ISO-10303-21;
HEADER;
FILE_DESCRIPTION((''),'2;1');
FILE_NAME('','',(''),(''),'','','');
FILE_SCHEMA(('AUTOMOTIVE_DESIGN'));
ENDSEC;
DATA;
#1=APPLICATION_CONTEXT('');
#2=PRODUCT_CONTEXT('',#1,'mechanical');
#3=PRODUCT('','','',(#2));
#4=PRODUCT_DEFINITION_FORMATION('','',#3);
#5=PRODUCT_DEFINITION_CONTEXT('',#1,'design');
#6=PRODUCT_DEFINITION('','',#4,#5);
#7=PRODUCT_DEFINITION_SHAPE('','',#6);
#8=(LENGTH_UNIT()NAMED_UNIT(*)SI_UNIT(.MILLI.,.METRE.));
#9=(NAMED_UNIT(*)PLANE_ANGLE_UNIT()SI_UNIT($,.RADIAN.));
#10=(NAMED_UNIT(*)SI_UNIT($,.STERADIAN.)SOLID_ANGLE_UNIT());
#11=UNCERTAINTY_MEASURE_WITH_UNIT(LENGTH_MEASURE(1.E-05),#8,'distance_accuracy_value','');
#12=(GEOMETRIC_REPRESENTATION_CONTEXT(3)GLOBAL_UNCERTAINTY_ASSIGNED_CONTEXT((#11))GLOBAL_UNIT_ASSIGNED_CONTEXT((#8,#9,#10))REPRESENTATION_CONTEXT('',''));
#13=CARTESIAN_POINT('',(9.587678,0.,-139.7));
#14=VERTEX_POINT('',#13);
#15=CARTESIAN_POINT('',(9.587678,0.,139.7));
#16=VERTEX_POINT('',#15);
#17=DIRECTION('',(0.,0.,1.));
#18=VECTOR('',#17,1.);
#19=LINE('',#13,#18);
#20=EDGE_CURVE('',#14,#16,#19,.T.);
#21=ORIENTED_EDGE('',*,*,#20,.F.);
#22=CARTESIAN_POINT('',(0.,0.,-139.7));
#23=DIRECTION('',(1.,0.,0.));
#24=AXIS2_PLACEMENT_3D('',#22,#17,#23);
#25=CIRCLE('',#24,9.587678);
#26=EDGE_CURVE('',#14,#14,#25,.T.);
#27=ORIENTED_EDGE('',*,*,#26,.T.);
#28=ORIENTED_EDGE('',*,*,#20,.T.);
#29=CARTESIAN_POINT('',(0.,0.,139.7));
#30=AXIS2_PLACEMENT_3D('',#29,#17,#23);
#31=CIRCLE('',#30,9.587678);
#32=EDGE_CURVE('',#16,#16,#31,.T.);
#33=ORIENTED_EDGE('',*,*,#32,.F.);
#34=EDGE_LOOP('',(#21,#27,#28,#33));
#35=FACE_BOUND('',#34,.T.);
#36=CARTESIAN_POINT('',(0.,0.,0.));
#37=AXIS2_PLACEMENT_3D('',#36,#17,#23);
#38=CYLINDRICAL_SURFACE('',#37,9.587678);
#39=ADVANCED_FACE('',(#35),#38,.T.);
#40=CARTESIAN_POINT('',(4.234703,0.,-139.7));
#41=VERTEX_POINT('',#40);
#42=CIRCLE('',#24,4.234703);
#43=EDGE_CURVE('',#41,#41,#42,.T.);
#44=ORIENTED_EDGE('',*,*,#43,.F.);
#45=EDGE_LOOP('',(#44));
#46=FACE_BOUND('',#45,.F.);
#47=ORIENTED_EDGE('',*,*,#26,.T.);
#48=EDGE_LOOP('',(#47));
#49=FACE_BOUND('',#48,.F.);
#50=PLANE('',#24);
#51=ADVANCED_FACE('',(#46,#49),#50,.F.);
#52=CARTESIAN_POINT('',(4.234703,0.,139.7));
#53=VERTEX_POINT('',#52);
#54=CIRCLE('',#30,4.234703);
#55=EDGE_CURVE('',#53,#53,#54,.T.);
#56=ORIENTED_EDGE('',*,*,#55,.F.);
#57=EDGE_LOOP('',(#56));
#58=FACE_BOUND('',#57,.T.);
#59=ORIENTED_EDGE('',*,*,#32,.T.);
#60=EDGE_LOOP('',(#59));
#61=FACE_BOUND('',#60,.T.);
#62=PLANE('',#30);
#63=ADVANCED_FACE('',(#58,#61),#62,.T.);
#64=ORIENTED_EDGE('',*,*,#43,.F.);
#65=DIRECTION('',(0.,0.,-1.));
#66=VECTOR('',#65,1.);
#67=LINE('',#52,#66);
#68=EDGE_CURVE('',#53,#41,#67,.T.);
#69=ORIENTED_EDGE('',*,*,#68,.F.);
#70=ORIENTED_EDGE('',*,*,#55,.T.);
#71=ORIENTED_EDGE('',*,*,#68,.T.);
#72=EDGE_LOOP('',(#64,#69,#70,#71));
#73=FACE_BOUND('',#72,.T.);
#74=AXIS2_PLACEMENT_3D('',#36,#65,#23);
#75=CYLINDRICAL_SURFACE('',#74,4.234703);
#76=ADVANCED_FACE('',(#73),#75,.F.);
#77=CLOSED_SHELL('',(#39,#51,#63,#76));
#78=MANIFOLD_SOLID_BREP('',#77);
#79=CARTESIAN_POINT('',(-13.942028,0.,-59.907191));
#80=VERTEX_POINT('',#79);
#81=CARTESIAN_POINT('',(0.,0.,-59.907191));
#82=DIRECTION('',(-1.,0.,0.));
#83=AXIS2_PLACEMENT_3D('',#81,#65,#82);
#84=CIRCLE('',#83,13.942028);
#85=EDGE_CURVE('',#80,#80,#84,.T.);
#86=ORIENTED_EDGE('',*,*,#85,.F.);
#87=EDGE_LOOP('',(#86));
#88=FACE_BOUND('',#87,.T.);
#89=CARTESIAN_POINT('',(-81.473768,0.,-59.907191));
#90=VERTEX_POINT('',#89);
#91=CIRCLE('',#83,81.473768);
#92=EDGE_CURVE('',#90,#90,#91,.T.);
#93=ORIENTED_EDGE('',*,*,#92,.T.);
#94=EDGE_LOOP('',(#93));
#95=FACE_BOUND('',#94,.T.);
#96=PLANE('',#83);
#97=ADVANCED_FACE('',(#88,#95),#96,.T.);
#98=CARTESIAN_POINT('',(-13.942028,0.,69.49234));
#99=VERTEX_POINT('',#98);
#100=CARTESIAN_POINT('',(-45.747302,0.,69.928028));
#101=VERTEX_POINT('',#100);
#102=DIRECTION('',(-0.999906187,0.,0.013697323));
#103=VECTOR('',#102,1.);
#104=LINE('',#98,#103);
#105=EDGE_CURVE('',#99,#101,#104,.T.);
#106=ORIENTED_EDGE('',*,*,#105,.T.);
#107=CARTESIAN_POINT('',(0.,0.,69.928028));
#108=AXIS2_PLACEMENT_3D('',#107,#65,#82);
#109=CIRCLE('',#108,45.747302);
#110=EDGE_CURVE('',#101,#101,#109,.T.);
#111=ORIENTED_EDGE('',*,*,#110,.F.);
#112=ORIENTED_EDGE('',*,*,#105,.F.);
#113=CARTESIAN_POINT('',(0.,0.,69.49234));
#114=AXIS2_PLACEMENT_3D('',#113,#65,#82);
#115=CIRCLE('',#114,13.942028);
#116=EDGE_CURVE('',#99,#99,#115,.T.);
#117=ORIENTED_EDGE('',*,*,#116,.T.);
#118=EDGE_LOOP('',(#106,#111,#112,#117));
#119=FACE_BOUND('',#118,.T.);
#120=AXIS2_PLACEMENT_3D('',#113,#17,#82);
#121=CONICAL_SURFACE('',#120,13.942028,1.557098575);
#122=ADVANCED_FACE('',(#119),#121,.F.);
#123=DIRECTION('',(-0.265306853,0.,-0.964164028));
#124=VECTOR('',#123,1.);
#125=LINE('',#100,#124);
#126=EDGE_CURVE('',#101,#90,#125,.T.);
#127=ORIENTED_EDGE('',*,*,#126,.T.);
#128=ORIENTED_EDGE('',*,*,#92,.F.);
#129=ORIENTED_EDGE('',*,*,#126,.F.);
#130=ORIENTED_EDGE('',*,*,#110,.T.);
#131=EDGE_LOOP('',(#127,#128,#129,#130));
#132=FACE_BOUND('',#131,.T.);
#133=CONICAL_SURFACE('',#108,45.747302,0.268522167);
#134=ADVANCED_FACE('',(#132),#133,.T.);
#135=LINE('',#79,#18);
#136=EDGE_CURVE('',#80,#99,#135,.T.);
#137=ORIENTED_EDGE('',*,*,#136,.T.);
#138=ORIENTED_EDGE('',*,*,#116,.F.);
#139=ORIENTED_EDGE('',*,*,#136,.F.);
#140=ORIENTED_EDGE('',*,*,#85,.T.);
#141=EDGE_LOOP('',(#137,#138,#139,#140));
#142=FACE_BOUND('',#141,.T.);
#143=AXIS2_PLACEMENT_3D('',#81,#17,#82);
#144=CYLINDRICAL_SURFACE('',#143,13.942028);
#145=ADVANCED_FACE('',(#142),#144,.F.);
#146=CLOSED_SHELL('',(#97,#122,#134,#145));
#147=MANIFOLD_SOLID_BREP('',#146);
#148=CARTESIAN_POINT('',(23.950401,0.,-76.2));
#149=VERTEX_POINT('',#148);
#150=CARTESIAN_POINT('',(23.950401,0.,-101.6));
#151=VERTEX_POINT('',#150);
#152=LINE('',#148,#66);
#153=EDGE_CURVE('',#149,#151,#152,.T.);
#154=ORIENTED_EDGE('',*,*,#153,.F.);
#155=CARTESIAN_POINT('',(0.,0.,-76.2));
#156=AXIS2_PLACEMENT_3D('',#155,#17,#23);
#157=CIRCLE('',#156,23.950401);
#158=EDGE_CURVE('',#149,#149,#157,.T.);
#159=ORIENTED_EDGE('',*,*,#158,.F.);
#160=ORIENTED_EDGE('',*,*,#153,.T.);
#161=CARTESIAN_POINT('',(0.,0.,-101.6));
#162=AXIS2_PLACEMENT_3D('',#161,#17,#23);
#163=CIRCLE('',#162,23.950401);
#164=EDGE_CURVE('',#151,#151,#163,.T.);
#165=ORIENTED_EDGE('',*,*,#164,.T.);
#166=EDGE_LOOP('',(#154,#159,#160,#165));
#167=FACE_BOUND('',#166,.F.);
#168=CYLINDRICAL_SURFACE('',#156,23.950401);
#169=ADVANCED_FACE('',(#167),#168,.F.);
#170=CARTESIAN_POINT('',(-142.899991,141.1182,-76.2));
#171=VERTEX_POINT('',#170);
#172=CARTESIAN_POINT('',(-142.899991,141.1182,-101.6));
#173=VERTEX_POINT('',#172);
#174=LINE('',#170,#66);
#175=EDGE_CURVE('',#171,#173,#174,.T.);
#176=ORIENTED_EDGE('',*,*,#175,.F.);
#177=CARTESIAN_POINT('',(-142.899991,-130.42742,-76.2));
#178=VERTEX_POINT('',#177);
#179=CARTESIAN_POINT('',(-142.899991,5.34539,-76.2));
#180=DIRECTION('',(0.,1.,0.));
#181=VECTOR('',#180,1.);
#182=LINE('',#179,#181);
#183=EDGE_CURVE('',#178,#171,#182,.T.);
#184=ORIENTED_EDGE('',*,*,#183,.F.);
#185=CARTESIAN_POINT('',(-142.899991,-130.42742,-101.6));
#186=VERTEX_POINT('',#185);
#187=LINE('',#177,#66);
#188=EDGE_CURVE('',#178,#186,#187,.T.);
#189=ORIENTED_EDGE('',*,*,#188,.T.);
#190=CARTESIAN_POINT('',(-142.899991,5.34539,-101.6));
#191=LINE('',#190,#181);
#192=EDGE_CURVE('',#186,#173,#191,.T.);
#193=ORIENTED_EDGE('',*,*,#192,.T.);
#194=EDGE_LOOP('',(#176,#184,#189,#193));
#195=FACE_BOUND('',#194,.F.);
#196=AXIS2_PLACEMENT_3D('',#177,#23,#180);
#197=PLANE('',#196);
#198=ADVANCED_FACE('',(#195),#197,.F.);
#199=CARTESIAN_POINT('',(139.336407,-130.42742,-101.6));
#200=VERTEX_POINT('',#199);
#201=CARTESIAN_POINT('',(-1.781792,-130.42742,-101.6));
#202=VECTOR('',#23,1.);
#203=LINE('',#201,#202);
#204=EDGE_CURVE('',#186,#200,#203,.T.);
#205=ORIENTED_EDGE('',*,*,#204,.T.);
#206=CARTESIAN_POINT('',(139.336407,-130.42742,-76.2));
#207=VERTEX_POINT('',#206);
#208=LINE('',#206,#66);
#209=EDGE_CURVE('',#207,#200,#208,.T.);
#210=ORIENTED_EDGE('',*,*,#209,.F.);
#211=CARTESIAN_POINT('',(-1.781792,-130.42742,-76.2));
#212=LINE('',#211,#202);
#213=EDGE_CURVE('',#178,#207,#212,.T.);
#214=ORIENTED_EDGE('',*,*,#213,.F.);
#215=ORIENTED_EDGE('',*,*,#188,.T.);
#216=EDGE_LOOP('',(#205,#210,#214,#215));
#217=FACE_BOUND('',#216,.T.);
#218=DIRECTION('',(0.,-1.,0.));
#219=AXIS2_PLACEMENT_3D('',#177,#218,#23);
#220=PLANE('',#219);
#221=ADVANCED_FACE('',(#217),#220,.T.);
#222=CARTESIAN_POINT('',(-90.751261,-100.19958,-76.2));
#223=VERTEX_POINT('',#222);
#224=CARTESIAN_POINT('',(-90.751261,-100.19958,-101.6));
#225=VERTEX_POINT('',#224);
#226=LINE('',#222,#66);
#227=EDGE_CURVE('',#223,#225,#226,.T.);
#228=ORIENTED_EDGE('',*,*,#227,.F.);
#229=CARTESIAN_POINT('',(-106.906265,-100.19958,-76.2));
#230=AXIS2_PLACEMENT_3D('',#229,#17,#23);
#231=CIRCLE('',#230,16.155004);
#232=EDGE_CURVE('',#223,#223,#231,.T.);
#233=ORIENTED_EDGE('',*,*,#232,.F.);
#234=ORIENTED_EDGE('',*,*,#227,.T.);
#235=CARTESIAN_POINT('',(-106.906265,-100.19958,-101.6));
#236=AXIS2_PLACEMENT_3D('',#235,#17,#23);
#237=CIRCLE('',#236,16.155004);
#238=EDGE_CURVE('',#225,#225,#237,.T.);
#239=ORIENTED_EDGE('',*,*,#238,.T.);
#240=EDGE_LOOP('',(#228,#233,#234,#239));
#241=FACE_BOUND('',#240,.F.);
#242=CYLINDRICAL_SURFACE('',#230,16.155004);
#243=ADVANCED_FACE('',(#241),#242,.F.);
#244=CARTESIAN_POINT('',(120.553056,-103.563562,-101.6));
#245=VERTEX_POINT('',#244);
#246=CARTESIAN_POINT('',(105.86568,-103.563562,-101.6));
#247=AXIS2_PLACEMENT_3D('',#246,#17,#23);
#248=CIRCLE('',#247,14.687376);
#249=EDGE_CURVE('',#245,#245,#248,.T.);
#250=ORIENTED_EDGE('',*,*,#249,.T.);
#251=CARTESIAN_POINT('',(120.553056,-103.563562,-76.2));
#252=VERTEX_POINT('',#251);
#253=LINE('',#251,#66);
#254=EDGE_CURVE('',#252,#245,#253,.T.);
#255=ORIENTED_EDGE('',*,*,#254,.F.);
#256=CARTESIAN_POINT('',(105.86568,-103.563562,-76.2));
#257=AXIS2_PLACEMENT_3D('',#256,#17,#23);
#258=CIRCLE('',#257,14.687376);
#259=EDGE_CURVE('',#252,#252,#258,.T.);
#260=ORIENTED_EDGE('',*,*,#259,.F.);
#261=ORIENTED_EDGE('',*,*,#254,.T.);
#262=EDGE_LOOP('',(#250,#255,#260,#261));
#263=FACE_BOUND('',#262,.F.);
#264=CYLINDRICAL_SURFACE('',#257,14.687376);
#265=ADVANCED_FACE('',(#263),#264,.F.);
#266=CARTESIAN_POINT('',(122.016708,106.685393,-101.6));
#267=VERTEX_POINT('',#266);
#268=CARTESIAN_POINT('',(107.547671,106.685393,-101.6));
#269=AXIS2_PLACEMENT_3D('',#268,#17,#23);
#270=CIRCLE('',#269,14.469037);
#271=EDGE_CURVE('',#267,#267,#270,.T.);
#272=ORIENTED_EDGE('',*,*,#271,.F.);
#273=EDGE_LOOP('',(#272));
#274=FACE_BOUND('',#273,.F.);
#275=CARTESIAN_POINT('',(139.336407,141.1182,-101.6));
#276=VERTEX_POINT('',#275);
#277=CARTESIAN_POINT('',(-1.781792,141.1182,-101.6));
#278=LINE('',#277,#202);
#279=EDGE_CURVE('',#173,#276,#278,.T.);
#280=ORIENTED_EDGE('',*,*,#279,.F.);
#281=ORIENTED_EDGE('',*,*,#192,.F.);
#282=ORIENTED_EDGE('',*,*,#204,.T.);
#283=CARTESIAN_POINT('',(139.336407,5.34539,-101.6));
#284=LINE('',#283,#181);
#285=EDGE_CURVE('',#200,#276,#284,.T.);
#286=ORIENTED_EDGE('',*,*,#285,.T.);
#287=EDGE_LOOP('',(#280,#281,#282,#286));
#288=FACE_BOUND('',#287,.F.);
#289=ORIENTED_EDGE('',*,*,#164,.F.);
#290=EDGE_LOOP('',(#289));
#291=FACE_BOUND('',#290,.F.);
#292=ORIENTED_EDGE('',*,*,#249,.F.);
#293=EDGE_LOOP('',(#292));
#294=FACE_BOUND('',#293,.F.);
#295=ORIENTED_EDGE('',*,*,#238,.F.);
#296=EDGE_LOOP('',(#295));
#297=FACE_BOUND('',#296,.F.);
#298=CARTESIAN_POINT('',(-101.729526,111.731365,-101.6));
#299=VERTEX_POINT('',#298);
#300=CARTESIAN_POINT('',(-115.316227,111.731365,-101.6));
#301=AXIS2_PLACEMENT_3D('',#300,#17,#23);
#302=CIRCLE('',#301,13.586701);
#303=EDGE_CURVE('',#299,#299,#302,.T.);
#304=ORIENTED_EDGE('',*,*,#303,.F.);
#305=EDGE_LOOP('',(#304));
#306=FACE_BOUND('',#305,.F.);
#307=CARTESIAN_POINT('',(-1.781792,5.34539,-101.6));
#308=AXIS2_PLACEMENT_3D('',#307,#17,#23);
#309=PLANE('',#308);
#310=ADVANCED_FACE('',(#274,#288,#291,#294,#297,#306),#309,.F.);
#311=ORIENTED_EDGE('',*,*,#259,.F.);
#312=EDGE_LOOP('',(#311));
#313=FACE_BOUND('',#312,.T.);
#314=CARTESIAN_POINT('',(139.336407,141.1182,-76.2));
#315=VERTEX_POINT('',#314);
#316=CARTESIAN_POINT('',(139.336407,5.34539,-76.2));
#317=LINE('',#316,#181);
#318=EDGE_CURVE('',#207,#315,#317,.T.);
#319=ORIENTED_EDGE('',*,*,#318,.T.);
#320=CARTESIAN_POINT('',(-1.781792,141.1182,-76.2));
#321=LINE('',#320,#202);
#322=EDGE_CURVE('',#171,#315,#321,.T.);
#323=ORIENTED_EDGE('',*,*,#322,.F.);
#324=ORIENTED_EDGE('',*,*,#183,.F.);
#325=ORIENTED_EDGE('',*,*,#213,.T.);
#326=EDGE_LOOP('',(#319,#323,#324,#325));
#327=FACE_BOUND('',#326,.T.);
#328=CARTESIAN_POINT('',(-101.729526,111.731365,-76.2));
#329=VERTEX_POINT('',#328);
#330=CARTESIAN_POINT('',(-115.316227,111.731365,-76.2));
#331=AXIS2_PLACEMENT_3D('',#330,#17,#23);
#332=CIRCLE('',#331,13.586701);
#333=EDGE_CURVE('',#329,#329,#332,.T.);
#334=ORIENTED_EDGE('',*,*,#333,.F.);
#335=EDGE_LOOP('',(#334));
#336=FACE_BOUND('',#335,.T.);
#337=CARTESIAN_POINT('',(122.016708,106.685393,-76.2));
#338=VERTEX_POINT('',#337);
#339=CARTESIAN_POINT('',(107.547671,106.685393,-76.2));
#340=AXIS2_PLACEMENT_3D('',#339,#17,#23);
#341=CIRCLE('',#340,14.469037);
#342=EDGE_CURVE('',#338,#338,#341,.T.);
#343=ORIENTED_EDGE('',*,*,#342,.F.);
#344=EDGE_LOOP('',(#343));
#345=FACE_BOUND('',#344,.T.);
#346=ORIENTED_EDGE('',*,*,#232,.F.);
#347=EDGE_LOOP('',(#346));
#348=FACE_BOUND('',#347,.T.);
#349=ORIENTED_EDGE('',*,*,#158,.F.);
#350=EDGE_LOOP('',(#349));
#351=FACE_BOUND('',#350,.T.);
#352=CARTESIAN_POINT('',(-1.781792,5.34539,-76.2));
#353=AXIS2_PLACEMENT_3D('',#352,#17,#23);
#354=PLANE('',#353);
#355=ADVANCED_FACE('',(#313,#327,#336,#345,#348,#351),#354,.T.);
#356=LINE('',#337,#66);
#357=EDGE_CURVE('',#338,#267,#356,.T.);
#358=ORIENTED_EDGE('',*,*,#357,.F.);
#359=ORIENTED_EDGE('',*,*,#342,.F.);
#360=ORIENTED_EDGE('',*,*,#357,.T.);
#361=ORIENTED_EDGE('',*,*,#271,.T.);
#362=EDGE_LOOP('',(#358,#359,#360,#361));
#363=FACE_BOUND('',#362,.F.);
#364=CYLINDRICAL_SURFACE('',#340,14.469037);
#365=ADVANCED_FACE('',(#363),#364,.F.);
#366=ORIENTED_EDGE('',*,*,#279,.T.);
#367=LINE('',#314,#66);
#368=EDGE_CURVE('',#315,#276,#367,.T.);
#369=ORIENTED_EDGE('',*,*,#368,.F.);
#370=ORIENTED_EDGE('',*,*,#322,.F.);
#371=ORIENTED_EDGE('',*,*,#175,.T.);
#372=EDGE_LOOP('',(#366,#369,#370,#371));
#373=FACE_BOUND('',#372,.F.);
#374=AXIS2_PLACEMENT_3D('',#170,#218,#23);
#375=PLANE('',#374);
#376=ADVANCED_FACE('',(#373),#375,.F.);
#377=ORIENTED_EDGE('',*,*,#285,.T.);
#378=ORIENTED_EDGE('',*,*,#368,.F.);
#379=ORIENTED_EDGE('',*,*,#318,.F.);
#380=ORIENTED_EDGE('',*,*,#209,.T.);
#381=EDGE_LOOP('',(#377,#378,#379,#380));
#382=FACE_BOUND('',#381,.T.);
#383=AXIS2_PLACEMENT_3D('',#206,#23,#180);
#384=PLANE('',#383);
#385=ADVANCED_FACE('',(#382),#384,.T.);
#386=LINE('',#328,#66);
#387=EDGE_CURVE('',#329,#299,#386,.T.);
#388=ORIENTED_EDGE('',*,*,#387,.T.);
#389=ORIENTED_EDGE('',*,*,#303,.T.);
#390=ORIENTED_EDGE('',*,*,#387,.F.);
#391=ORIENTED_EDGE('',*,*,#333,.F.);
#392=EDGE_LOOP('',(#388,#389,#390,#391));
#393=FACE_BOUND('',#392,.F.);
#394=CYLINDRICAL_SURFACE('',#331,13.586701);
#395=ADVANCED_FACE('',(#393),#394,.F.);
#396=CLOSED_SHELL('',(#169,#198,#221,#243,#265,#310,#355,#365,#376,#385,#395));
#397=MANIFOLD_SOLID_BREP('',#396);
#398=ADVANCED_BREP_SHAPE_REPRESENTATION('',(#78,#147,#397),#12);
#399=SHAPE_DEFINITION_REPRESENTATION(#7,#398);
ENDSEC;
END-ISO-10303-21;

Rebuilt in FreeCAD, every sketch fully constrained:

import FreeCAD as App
import Part
import Sketcher
Q = App.Units.Quantity

doc = App.newDocument("Part")
params = doc.addObject("Spreadsheet::Sheet", "Params")
for row, (alias, value) in enumerate([
    ("revolution_angle", "360 deg"),
    ("pad1_length", "11 in"),
    ("pad2_length", "1 in"),
], start=1):
    params.set(f"A{row}", alias)
    params.set(f"B{row}", "=" + value)
    params.setAlias(f"B{row}", alias)

body = doc.addObject("PartDesign::Body", "Body")

# Sketch on XZ plane
sketch1 = body.newObject("Sketcher::SketchObject", "Sketch")
sketch1.AttachmentSupport = (doc.getObject("XZ_Plane"), [""])
sketch1.MapMode = "FlatFace"
sketch1.addGeometry([
    Part.LineSegment(App.Vector(-14, 69, 0), App.Vector(-46, 70, 0)),
    Part.LineSegment(App.Vector(-46, 70, 0), App.Vector(-81, -60, 0)),
    Part.LineSegment(App.Vector(-81, -60, 0), App.Vector(-14, -60, 0)),
    Part.LineSegment(App.Vector(-14, -60, 0), App.Vector(-14, 69, 0)),
], False)
sketch1.addConstraint([
    Sketcher.Constraint("Coincident", 0, 2, 1, 1),
    Sketcher.Constraint("Coincident", 1, 2, 2, 1),
    Sketcher.Constraint("Coincident", 2, 2, 3, 1),
    Sketcher.Constraint("Coincident", 3, 2, 0, 1),
    Sketcher.Constraint("Horizontal", 2),
    Sketcher.Constraint("Vertical", 3),
    Sketcher.Constraint("DistanceX", 2, 1, 2, 2, Q("67.53174 mm")),
    Sketcher.Constraint("DistanceY", 3, 1, 3, 2, Q("129.399531 mm")),
    Sketcher.Constraint("DistanceX", 0, 2, -1, 1, Q("45.747302 mm")),
    Sketcher.Constraint("Distance", 0, Q("31.808258 mm")),
    Sketcher.Constraint("DistanceX", 1, 2, -1, 1, Q("81.473768 mm")),
    Sketcher.Constraint("DistanceY", 1, 2, -1, 1, Q("59.907191 mm")),
])
revolution = body.newObject("PartDesign::Revolution", "Revolution")
revolution.Profile = sketch1
revolution.ReferenceAxis = (sketch1, ["V_Axis"])
revolution.setExpression("Angle", "Params.revolution_angle")
body2 = doc.addObject("PartDesign::Body", "Body001")

# Sketch on XY plane
sketch2 = body2.newObject("Sketcher::SketchObject", "Sketch001")
sketch2.AttachmentSupport = (doc.getObject("XY_Plane001"), [""])
sketch2.MapMode = "FlatFace"
sketch2.addGeometry([
    Part.Circle(App.Vector(0, 0, 0), App.Vector(0, 0, 1), 9.6),
    Part.Circle(App.Vector(0, 0, 0), App.Vector(0, 0, 1), 4.2),
], False)
sketch2.addConstraint([
    Sketcher.Constraint("Coincident", 0, 3, -1, 1),
    Sketcher.Constraint("Coincident", 1, 3, -1, 1),
    Sketcher.Constraint("Diameter", 0, Q("19.175356 mm")),
    Sketcher.Constraint("Diameter", 1, Q("8.469406 mm")),
])
pad1 = body2.newObject("PartDesign::Pad", "Pad")
pad1.Profile = sketch2
pad1.setExpression("Length", "Params.pad1_length")
pad1.Midplane = True
body3 = doc.addObject("PartDesign::Body", "Body002")

# Sketch on XY plane
sketch3 = body3.newObject("Sketcher::SketchObject", "Sketch002")
sketch3.AttachmentSupport = (doc.getObject("XY_Plane002"), [""])
sketch3.MapMode = "FlatFace"
sketch3.AttachmentOffset = App.Placement(App.Vector(0, 0, -3 * 25.4), App.Rotation())
sketch3.addGeometry([
    Part.LineSegment(App.Vector(-143, 141, 0), App.Vector(-143, -130, 0)),  # 0
    Part.LineSegment(App.Vector(-143, -130, 0), App.Vector(139, -130, 0)),  # 1
    Part.LineSegment(App.Vector(139, -130, 0), App.Vector(139, 141, 0)),  # 2
    Part.LineSegment(App.Vector(139, 141, 0), App.Vector(-143, 141, 0)),  # 3
    Part.Circle(App.Vector(-107, -100, 0), App.Vector(0, 0, 1), 16),  # 4
    Part.Circle(App.Vector(106, -104, 0), App.Vector(0, 0, 1), 15),  # 5
    Part.Circle(App.Vector(0, 0, 0), App.Vector(0, 0, 1), 24),  # 6
    Part.Circle(App.Vector(-115, 112, 0), App.Vector(0, 0, 1), 14),  # 7
    Part.Circle(App.Vector(108, 107, 0), App.Vector(0, 0, 1), 14),  # 8
], False)
sketch3.addConstraint([
    Sketcher.Constraint("Coincident", 0, 2, 1, 1),
    Sketcher.Constraint("Coincident", 1, 2, 2, 1),
    Sketcher.Constraint("Coincident", 2, 2, 3, 1),
    Sketcher.Constraint("Coincident", 3, 2, 0, 1),
    Sketcher.Constraint("Vertical", 0),
    Sketcher.Constraint("Horizontal", 1),
    Sketcher.Constraint("Vertical", 2),
    Sketcher.Constraint("Horizontal", 3),
    Sketcher.Constraint("Coincident", 6, 3, -1, 1),
    Sketcher.Constraint("Diameter", 7, Q("27.173402 mm")),
    Sketcher.Constraint("Diameter", 4, Q("32.310008 mm")),
    Sketcher.Constraint("Diameter", 5, Q("29.374752 mm")),
    Sketcher.Constraint("Diameter", 6, Q("47.900802 mm")),
    Sketcher.Constraint("Diameter", 8, Q("28.938074 mm")),
    Sketcher.Constraint("DistanceY", 4, 3, 3, 2, Q("9.5007 in")),
    Sketcher.Constraint("DistanceY", 0, 2, 0, 1, Q("271.545619 mm")),
    Sketcher.Constraint("DistanceY", -1, 1, 2, 2, Q("141.1182 mm")),
    Sketcher.Constraint("DistanceX", 7, 3, 8, 3, Q("222.863898 mm")),
    Sketcher.Constraint("DistanceX", 1, 1, 1, 2, Q("282.236397 mm")),
    Sketcher.Constraint("DistanceX", -1, 1, 5, 3, Q("105.86568 mm")),
    Sketcher.Constraint("DistanceX", -1, 1, 8, 3, Q("107.547671 mm")),
    Sketcher.Constraint("DistanceX", 0, 2, -1, 1, Q("142.899991 mm")),
    Sketcher.Constraint("DistanceX", 7, 3, 4, 3, Q("8.409962 mm")),
    Sketcher.Constraint("DistanceY", 8, 3, 7, 3, Q("5.045972 mm")),
    Sketcher.Constraint("DistanceY", 5, 3, 2, 2, Q("244.681761 mm")),
    Sketcher.Constraint("DistanceY", -1, 1, 7, 3, Q("111.731365 mm")),
])
pad2 = body3.newObject("PartDesign::Pad", "Pad001")
pad2.Profile = sketch3
pad2.setExpression("Length", "Params.pad2_length")
pad2.Reversed = True

doc.recompute()
